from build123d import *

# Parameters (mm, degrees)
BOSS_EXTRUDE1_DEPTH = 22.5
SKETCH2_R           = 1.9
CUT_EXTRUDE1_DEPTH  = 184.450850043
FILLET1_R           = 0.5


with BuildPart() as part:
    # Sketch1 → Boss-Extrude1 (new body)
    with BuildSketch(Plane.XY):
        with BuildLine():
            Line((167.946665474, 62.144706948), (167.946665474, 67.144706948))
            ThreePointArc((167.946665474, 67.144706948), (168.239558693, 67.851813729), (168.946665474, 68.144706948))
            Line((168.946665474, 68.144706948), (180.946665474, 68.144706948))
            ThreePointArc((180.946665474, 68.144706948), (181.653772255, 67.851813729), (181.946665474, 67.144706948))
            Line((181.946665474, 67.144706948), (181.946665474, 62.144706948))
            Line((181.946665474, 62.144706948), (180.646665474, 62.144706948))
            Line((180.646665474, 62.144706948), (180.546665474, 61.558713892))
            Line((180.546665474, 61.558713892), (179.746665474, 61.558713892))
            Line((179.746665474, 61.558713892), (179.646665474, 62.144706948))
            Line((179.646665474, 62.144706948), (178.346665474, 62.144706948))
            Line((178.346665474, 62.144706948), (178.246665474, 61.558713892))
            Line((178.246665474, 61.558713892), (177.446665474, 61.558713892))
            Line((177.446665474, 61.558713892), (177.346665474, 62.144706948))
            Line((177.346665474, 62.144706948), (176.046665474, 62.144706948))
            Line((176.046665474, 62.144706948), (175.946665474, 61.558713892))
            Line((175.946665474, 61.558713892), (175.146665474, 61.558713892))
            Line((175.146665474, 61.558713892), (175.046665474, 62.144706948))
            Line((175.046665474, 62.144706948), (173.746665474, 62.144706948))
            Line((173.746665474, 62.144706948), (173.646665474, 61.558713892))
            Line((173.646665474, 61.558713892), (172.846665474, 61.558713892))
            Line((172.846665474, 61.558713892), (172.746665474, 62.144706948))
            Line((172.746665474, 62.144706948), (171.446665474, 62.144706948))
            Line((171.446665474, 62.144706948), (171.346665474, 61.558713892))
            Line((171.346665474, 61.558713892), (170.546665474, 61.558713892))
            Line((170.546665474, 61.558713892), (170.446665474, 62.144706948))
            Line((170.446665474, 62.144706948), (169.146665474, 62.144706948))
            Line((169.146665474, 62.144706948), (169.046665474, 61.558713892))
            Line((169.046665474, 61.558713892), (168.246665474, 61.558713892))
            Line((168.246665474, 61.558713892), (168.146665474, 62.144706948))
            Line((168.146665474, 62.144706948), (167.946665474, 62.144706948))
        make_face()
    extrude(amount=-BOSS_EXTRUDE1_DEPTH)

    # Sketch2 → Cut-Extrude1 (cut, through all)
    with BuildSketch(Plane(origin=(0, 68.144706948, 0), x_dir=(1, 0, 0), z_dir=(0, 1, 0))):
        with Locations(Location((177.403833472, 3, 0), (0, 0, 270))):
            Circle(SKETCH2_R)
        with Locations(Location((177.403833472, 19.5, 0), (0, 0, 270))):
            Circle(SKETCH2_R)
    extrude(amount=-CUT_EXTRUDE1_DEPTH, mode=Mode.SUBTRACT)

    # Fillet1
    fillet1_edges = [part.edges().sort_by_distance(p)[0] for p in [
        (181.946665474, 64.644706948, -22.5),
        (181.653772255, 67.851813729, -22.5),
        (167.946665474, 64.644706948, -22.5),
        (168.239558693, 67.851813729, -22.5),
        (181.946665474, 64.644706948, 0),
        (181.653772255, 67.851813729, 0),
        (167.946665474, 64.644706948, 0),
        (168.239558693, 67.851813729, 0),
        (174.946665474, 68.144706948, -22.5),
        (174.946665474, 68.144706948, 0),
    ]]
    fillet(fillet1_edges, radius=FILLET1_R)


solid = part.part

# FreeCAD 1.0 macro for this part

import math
import FreeCAD as App
import Part
import Sketcher
Q = App.Units.Quantity


def edges_at(feature, points):
    """Names of the edges that pass closest to the given points."""
    edges = feature.Shape.Edges
    near = lambda p: min(range(len(edges)), key=lambda i: edges[i].distToShape(Part.Vertex(*p))[0])
    return sorted({f"Edge{near(p) + 1}" for p in points})

doc = App.newDocument("Part")
body = doc.addObject("PartDesign::Body", "Body")

# Sketch on XY plane
sketch1 = body.newObject("Sketcher::SketchObject", "Sketch")
sketch1.AttachmentSupport = (doc.getObject("XY_Plane"), [""])
sketch1.MapMode = "FlatFace"
sketch1.addGeometry([
    Part.LineSegment(App.Vector(167.95, 67.14, 0), App.Vector(167.95, 62.14, 0)),  # 0
    Part.LineSegment(App.Vector(167.95, 62.14, 0), App.Vector(168.15, 62.14, 0)),  # 1
    Part.LineSegment(App.Vector(168.15, 62.14, 0), App.Vector(168.25, 61.56, 0)),  # 2
    Part.LineSegment(App.Vector(168.25, 61.56, 0), App.Vector(169.05, 61.56, 0)),  # 3
    Part.LineSegment(App.Vector(169.05, 61.56, 0), App.Vector(169.15, 62.14, 0)),  # 4
    Part.LineSegment(App.Vector(169.15, 62.14, 0), App.Vector(170.45, 62.14, 0)),  # 5
    Part.LineSegment(App.Vector(170.45, 62.14, 0), App.Vector(170.55, 61.56, 0)),  # 6
    Part.LineSegment(App.Vector(170.55, 61.56, 0), App.Vector(171.35, 61.56, 0)),  # 7
    Part.LineSegment(App.Vector(171.35, 61.56, 0), App.Vector(171.45, 62.14, 0)),  # 8
    Part.LineSegment(App.Vector(171.45, 62.14, 0), App.Vector(172.75, 62.14, 0)),  # 9
    Part.LineSegment(App.Vector(172.75, 62.14, 0), App.Vector(172.85, 61.56, 0)),  # 10
    Part.LineSegment(App.Vector(172.85, 61.56, 0), App.Vector(173.65, 61.56, 0)),  # 11
    Part.LineSegment(App.Vector(173.65, 61.56, 0), App.Vector(173.75, 62.14, 0)),  # 12
    Part.LineSegment(App.Vector(173.75, 62.14, 0), App.Vector(175.05, 62.14, 0)),  # 13
    Part.LineSegment(App.Vector(175.05, 62.14, 0), App.Vector(175.15, 61.56, 0)),  # 14
    Part.LineSegment(App.Vector(175.15, 61.56, 0), App.Vector(175.95, 61.56, 0)),  # 15
    Part.LineSegment(App.Vector(175.95, 61.56, 0), App.Vector(176.05, 62.14, 0)),  # 16
    Part.LineSegment(App.Vector(176.05, 62.14, 0), App.Vector(177.35, 62.14, 0)),  # 17
    Part.LineSegment(App.Vector(177.35, 62.14, 0), App.Vector(177.45, 61.56, 0)),  # 18
    Part.LineSegment(App.Vector(177.45, 61.56, 0), App.Vector(178.25, 61.56, 0)),  # 19
    Part.LineSegment(App.Vector(178.25, 61.56, 0), App.Vector(178.35, 62.14, 0)),  # 20
    Part.LineSegment(App.Vector(178.35, 62.14, 0), App.Vector(179.65, 62.14, 0)),  # 21
    Part.LineSegment(App.Vector(179.65, 62.14, 0), App.Vector(179.75, 61.56, 0)),  # 22
    Part.LineSegment(App.Vector(179.75, 61.56, 0), App.Vector(180.55, 61.56, 0)),  # 23
    Part.LineSegment(App.Vector(180.55, 61.56, 0), App.Vector(180.65, 62.14, 0)),  # 24
    Part.LineSegment(App.Vector(180.65, 62.14, 0), App.Vector(181.95, 62.14, 0)),  # 25
    Part.LineSegment(App.Vector(181.95, 62.14, 0), App.Vector(181.95, 67.14, 0)),  # 26
    Part.ArcOfCircle(Part.Circle(App.Vector(180.95, 67.14, 0), App.Vector(0, 0, 1), 1), math.radians(0), math.radians(90)),  # 27
    Part.LineSegment(App.Vector(180.95, 68.14, 0), App.Vector(168.95, 68.14, 0)),  # 28
    Part.ArcOfCircle(Part.Circle(App.Vector(168.95, 67.14, 0), App.Vector(0, 0, 1), 1), math.radians(90), math.radians(180)),  # 29
], False)
sketch1.addConstraint([
    Sketcher.Constraint("Coincident", 0, 2, 1, 1),
    Sketcher.Constraint("Coincident", 1, 2, 2, 1),
    Sketcher.Constraint("Coincident", 2, 2, 3, 1),
    Sketcher.Constraint("Coincident", 3, 2, 4, 1),
    Sketcher.Constraint("Coincident", 4, 2, 5, 1),
    Sketcher.Constraint("Coincident", 5, 2, 6, 1),
    Sketcher.Constraint("Coincident", 6, 2, 7, 1),
    Sketcher.Constraint("Coincident", 7, 2, 8, 1),
    Sketcher.Constraint("Coincident", 8, 2, 9, 1),
    Sketcher.Constraint("Coincident", 9, 2, 10, 1),
    Sketcher.Constraint("Coincident", 10, 2, 11, 1),
    Sketcher.Constraint("Coincident", 11, 2, 12, 1),
    Sketcher.Constraint("Coincident", 12, 2, 13, 1),
    Sketcher.Constraint("Coincident", 13, 2, 14, 1),
    Sketcher.Constraint("Coincident", 14, 2, 15, 1),
    Sketcher.Constraint("Coincident", 15, 2, 16, 1),
    Sketcher.Constraint("Coincident", 16, 2, 17, 1),
    Sketcher.Constraint("Coincident", 17, 2, 18, 1),
    Sketcher.Constraint("Coincident", 18, 2, 19, 1),
    Sketcher.Constraint("Coincident", 19, 2, 20, 1),
    Sketcher.Constraint("Coincident", 20, 2, 21, 1),
    Sketcher.Constraint("Coincident", 21, 2, 22, 1),
    Sketcher.Constraint("Coincident", 22, 2, 23, 1),
    Sketcher.Constraint("Coincident", 23, 2, 24, 1),
    Sketcher.Constraint("Coincident", 24, 2, 25, 1),
    Sketcher.Constraint("Coincident", 25, 2, 26, 1),
    Sketcher.Constraint("Tangent", 26, 2, 27, 1),
    Sketcher.Constraint("Tangent", 27, 2, 28, 1),
    Sketcher.Constraint("Tangent", 28, 2, 29, 1),
    Sketcher.Constraint("Tangent", 29, 2, 0, 1),
    Sketcher.Constraint("Vertical", 0),
    Sketcher.Constraint("Horizontal", 1),
    Sketcher.Constraint("Horizontal", 3),
    Sketcher.Constraint("Horizontal", 5),
    Sketcher.Constraint("Horizontal", 7),
    Sketcher.Constraint("Horizontal", 9),
    Sketcher.Constraint("Horizontal", 11),
    Sketcher.Constraint("Horizontal", 13),
    Sketcher.Constraint("Horizontal", 15),
    Sketcher.Constraint("Horizontal", 17),
    Sketcher.Constraint("Horizontal", 19),
    Sketcher.Constraint("Horizontal", 21),
    Sketcher.Constraint("Horizontal", 23),
    Sketcher.Constraint("Horizontal", 25),
    Sketcher.Constraint("Vertical", 26),
    Sketcher.Constraint("Horizontal", 28),
    Sketcher.Constraint("Equal", 27, 29),
    Sketcher.Constraint("Parallel", 2, 6),
    Sketcher.Constraint("Parallel", 4, 8),
    Sketcher.Constraint("Parallel", 6, 10),
    Sketcher.Constraint("Parallel", 8, 12),
    Sketcher.Constraint("Parallel", 10, 14),
    Sketcher.Constraint("Parallel", 12, 16),
    Sketcher.Constraint("Parallel", 14, 18),
    Sketcher.Constraint("Parallel", 16, 20),
    Sketcher.Constraint("Parallel", 18, 22),
    Sketcher.Constraint("Parallel", 20, 24),
    Sketcher.Constraint("Horizontal", 1, 2, 4, 2),
    Sketcher.Constraint("Horizontal", 3, 2, 6, 2),
    Sketcher.Constraint("Horizontal", 5, 2, 8, 2),
    Sketcher.Constraint("Horizontal", 7, 2, 10, 2),
    Sketcher.Constraint("Horizontal", 9, 2, 12, 2),
    Sketcher.Constraint("Horizontal", 11, 2, 14, 2),
    Sketcher.Constraint("Horizontal", 13, 2, 16, 2),
    Sketcher.Constraint("Horizontal", 15, 2, 18, 2),
    Sketcher.Constraint("Horizontal", 17, 2, 20, 2),
    Sketcher.Constraint("Horizontal", 19, 2, 22, 2),
    Sketcher.Constraint("Horizontal", 21, 2, 24, 2),
    Sketcher.Constraint("Equal", 3, 7),
    Sketcher.Constraint("Equal", 5, 9),
    Sketcher.Constraint("Equal", 7, 11),
    Sketcher.Constraint("Equal", 9, 13),
    Sketcher.Constraint("Equal", 11, 15),
    Sketcher.Constraint("Equal", 13, 17),
    Sketcher.Constraint("Equal", 15, 19),
    Sketcher.Constraint("Equal", 17, 21),
    Sketcher.Constraint("Equal", 19, 23),
    Sketcher.Constraint("Equal", 21, 25),
    Sketcher.Constraint("Equal", 2, 4),
    Sketcher.Constraint("Radius", 27, Q("1 mm")),
    Sketcher.Constraint("DistanceX", 28, 2, 28, 1, Q("12 mm")),
    Sketcher.Constraint("DistanceY", 0, 2, 0, 1, Q("5 mm")),
    Sketcher.Constraint("DistanceX", 1, 1, 1, 2, Q("0.2 mm")),
    Sketcher.Constraint("DistanceX", 3, 1, 3, 2, Q("0.8 mm")),
    Sketcher.Constraint("DistanceX", 5, 1, 5, 2, Q("1.3 mm")),
    Sketcher.Constraint("Distance", 2, Q("0.594464 mm")),
    Sketcher.Constraint("DistanceX", -1, 1, 27, 3, Q("180.946665 mm")),
    Sketcher.Constraint("DistanceY", -1, 1, 27, 3, Q("67.144707 mm")),
])
pad1 = body.newObject("PartDesign::Pad", "Pad")
pad1.Profile = sketch1
pad1.Length = 22.5
pad1.Reversed = True

# Sketch on XZ plane
sketch2 = body.newObject("Sketcher::SketchObject", "Sketch001")
sketch2.AttachmentSupport = (doc.getObject("XZ_Plane"), [""])
sketch2.MapMode = "FlatFace"
sketch2.AttachmentOffset = App.Placement(App.Vector(0, 0, -68.144707), App.Rotation())
sketch2.addGeometry([
    Part.Circle(App.Vector(177.4, -3, 0), App.Vector(0, 0, 1), 1.9),
    Part.Circle(App.Vector(177.4, -19.5, 0), App.Vector(0, 0, 1), 1.9),
], False)
sketch2.addConstraint([
    Sketcher.Constraint("Equal", 0, 1),
    Sketcher.Constraint("Vertical", 0, 3, 1, 3),
    Sketcher.Constraint("Diameter", 0, Q("3.8 mm")),
    Sketcher.Constraint("DistanceY", 0, 3, -1, 1, Q("3 mm")),
    Sketcher.Constraint("DistanceY", 1, 3, -1, 1, Q("19.5 mm")),
    Sketcher.Constraint("DistanceX", -1, 1, 0, 3, Q("177.403833 mm")),
])
pocket1 = body.newObject("PartDesign::Pocket", "Pocket")
pocket1.Profile = sketch2
pocket1.Type = "ThroughAll"
pocket1.Reversed = True
doc.recompute()

fillet = body.newObject("PartDesign::Fillet", "Fillet")
fillet.Base = (pocket1, edges_at(pocket1, [
    (181.947, 64.645, -22.5),
    (181.654, 67.852, -22.5),
    (167.947, 64.645, -22.5),
    (168.24, 67.852, -22.5),
    (181.947, 64.645, 0),
    (181.654, 67.852, 0),
    (167.947, 64.645, 0),
    (168.24, 67.852, 0),
    (174.947, 68.145, -22.5),
    (174.947, 68.145, 0),
]))
fillet.Radius = 0.5

doc.recompute()
